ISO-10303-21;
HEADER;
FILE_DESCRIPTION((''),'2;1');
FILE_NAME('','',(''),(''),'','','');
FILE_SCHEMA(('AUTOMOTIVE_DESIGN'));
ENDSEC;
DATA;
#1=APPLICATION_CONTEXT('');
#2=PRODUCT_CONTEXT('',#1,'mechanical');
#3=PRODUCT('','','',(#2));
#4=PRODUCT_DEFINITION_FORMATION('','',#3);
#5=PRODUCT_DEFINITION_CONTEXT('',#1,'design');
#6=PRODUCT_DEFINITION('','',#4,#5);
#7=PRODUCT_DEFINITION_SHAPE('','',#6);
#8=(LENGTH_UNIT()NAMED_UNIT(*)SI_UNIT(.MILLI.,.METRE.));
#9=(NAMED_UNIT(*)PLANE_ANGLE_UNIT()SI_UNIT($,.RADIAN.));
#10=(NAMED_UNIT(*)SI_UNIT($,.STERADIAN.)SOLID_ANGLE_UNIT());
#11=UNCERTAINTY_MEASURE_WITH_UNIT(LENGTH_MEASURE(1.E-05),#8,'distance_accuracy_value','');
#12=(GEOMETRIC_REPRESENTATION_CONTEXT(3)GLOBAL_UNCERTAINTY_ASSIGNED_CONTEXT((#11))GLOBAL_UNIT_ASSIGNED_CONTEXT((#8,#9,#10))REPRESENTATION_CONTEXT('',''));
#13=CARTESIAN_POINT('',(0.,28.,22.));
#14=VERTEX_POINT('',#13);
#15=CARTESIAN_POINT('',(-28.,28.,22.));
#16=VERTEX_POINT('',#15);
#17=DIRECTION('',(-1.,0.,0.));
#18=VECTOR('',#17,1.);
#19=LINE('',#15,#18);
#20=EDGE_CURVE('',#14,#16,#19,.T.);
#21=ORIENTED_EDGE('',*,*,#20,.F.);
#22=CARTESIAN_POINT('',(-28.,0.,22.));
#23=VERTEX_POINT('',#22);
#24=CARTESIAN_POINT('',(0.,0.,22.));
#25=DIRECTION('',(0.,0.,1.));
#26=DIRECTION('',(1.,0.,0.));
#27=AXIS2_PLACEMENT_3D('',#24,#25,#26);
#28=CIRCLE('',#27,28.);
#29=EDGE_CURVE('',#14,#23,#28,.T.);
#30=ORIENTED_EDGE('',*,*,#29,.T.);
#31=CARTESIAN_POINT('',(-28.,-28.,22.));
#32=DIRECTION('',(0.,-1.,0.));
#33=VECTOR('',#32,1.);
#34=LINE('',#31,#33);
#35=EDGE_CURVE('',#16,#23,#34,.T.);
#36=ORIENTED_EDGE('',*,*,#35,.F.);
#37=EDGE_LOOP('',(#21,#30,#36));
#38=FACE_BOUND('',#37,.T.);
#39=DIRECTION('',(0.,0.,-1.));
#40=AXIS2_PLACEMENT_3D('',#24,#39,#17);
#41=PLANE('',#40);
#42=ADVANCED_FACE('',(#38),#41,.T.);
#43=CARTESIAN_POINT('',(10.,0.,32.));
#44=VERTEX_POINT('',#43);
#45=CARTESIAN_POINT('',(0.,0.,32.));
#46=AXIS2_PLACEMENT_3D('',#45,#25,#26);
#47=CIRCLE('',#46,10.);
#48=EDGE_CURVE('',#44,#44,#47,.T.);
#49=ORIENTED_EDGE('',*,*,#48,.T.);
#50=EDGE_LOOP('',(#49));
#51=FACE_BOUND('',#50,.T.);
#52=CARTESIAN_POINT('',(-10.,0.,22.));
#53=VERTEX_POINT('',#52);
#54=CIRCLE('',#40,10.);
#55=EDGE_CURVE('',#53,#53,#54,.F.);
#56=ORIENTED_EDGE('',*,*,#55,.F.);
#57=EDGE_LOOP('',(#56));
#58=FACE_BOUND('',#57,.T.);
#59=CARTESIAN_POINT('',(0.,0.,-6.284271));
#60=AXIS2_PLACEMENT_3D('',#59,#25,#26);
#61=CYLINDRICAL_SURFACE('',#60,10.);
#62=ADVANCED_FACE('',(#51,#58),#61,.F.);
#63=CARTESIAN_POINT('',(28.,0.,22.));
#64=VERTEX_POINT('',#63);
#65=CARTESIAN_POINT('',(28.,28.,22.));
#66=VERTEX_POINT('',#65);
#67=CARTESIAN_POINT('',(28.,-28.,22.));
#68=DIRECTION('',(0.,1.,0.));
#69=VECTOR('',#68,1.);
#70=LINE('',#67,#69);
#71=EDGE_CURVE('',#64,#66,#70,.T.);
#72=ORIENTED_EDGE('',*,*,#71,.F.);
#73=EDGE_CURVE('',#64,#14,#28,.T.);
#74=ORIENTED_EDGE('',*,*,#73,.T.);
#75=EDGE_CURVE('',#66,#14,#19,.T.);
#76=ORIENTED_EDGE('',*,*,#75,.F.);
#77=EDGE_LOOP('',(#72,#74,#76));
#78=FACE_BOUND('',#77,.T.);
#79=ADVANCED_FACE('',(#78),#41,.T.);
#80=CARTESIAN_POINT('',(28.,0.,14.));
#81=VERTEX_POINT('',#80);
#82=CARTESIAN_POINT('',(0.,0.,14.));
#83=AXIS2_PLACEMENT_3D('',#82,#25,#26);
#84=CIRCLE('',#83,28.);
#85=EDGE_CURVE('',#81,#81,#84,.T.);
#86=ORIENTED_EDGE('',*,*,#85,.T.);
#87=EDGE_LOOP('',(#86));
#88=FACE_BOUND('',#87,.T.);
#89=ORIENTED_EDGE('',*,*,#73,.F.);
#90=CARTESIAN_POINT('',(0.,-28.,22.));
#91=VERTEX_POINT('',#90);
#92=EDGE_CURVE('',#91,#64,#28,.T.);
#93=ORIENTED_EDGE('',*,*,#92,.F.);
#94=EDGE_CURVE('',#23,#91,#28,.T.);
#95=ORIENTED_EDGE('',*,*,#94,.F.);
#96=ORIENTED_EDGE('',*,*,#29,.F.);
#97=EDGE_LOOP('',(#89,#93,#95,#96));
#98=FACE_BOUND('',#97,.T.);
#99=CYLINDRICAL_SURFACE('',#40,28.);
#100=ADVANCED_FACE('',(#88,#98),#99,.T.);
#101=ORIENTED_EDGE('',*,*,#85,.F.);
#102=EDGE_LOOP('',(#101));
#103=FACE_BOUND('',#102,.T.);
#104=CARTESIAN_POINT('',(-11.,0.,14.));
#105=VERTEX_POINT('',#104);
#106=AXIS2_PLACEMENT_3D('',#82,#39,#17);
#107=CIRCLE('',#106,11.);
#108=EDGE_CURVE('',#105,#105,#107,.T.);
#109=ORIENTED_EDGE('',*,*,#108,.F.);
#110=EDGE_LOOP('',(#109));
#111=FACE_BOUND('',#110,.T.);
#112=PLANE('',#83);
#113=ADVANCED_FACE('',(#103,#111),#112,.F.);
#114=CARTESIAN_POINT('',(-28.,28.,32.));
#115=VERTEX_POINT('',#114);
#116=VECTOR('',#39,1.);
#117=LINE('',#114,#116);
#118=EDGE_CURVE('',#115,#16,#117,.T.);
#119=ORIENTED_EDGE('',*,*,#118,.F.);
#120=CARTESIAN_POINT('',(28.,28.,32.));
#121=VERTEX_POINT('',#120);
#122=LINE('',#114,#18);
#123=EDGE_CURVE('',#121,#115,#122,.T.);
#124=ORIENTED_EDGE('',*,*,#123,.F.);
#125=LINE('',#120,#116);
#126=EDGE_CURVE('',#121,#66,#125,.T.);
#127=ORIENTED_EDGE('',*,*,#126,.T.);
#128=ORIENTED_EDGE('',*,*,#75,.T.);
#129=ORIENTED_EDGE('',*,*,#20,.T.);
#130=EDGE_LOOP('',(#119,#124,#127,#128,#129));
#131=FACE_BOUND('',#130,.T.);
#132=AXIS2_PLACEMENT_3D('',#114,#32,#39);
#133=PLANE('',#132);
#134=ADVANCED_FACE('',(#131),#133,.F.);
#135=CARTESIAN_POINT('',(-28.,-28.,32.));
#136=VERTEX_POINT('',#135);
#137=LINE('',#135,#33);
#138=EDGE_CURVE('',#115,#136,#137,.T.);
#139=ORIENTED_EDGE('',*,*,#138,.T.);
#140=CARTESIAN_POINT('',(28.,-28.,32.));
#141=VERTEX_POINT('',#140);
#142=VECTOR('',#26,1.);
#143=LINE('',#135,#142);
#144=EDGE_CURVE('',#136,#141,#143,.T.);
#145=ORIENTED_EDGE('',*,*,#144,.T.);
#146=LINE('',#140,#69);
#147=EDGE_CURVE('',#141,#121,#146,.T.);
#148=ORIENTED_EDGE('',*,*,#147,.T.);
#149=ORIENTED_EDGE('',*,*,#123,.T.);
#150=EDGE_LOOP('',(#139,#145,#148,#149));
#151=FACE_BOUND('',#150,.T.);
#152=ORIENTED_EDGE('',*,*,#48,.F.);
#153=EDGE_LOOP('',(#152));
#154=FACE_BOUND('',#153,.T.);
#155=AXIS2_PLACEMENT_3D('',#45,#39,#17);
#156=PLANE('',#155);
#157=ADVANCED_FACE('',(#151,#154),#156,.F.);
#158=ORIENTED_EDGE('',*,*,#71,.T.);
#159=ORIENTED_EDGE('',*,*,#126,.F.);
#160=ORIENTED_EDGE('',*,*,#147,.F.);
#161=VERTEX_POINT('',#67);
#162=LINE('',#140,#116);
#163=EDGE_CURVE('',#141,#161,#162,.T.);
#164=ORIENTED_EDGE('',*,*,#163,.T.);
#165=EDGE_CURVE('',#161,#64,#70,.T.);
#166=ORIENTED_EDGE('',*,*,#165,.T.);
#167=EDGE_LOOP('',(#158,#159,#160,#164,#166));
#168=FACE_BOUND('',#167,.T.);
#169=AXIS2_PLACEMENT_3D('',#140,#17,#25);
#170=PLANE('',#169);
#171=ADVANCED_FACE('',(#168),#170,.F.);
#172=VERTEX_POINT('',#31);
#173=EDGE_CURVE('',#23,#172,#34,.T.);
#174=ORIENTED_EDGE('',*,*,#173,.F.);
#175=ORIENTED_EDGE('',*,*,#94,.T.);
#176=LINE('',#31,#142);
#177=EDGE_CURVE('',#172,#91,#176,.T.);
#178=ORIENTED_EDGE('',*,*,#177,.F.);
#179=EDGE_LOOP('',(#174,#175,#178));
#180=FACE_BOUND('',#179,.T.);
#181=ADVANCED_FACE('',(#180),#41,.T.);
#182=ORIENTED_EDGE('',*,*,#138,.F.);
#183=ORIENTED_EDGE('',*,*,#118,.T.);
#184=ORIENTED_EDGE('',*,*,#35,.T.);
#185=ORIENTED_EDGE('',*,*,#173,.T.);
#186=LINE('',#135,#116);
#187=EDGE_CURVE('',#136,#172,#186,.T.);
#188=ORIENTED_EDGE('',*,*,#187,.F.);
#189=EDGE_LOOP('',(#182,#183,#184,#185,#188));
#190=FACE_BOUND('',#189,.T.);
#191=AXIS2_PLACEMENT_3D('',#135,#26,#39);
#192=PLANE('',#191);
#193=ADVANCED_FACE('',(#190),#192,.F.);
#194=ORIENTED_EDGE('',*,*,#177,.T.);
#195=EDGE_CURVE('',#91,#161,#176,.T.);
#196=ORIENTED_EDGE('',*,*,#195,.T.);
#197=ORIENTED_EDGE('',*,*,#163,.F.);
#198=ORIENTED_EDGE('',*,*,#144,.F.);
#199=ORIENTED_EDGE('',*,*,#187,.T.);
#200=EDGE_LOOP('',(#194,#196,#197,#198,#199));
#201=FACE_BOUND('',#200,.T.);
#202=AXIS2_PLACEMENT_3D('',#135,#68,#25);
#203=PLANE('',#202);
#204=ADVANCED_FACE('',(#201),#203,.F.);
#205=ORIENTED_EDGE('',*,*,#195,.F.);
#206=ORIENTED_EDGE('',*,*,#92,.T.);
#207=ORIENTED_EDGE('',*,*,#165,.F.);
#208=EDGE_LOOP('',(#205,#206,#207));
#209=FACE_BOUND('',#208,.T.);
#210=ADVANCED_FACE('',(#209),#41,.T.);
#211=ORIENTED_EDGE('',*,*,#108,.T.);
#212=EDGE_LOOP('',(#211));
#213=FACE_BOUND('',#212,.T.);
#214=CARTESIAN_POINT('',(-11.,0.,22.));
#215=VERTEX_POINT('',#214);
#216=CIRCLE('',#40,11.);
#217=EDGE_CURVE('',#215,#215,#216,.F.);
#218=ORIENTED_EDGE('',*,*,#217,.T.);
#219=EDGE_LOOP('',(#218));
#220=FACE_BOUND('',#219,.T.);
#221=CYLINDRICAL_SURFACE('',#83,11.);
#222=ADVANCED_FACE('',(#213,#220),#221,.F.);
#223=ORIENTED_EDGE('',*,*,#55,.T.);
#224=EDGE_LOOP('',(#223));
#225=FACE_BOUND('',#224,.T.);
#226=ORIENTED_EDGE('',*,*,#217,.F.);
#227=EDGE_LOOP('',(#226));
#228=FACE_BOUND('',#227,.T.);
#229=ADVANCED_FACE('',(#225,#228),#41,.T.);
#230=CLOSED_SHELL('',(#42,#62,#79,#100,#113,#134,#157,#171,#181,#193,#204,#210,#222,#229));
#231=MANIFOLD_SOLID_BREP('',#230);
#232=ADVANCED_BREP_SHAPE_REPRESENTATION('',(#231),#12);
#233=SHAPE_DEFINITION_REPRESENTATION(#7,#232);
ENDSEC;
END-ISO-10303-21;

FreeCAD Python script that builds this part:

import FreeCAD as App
import Part
import Sketcher


def add_polygon(sketch, points):
    """Adds a closed chain of lines whose ends are joined by coincident constraints."""
    first, n = sketch.GeometryCount, len(points)
    for a, b in zip(points, points[1:] + points[:1]):
        sketch.addGeometry(Part.LineSegment(App.Vector(*a, 0), App.Vector(*b, 0)), False)
    for i in range(n):
        sketch.addConstraint(Sketcher.Constraint("Coincident", first + i, 2, first + (i + 1) % n, 1))

doc = App.newDocument("Part")
body = doc.addObject("PartDesign::Body", "Body")

sketch1 = body.newObject("Sketcher::SketchObject", "Sketch")
sketch1.AttachmentSupport = (doc.getObject("XY_Plane"), [""])
sketch1.MapMode = "FlatFace"
sketch1.addGeometry(Part.Circle(App.Vector(0, 0, 0), App.Vector(0, 0, 1), 28), False)
sketch1.addGeometry(Part.Circle(App.Vector(0, 0, 0), App.Vector(0, 0, 1), 18), False)
sketch1.addConstraint(Sketcher.Constraint("Coincident", 0, 3, -1, 1))
sketch1.addConstraint(Sketcher.Constraint("Coincident", 1, 3, -1, 1))
sketch1.addConstraint(Sketcher.Constraint("Diameter", 0, 56.0))
sketch1.addConstraint(Sketcher.Constraint("Diameter", 1, 36.0))
pad1 = body.newObject("PartDesign::Pad", "Pad")
pad1.Profile = sketch1
pad1.Length = 22

sketch2 = body.newObject("Sketcher::SketchObject", "Sketch001")
sketch2.AttachmentSupport = (doc.getObject("XY_Plane"), [""])
sketch2.MapMode = "FlatFace"
sketch2.AttachmentOffset = App.Placement(App.Vector(0, 0, 22), App.Rotation())
add_polygon(sketch2, [(-28, 28), (-28, -28), (28, -28), (28, 28)])
sketch2.addConstraint(Sketcher.Constraint("Vertical", 0))
sketch2.addConstraint(Sketcher.Constraint("Horizontal", 1))
sketch2.addConstraint(Sketcher.Constraint("Vertical", 2))
sketch2.addConstraint(Sketcher.Constraint("Horizontal", 3))
sketch2.addConstraint(Sketcher.Constraint("Symmetric", 0, 2, 2, 2, -1, 1))
sketch2.addConstraint(Sketcher.Constraint("Equal", 3, 0))
sketch2.addConstraint(Sketcher.Constraint("DistanceX", 1, 1, 1, 2, 56.0))
pad2 = body.newObject("PartDesign::Pad", "Pad001")
pad2.Profile = sketch2
pad2.Length = 10

sketch3 = body.newObject("Sketcher::SketchObject", "Sketch002")
sketch3.AttachmentSupport = (doc.getObject("XY_Plane"), [""])
sketch3.MapMode = "FlatFace"
add_polygon(sketch3, [(0, 0), (28, -28), (-28, -28)])
sketch3.addConstraint(Sketcher.Constraint("Horizontal", 1))
sketch3.addConstraint(Sketcher.Constraint("Coincident", 2, 2, -1, 1))
sketch3.addConstraint(Sketcher.Constraint("Perpendicular", 0, 2))
sketch3.addConstraint(Sketcher.Constraint("Equal", 0, 2))
sketch3.addConstraint(Sketcher.Constraint("DistanceX", 1, 2, 1, 1, 56.0))
pocket1 = body.newObject("PartDesign::Pocket", "Pocket")
pocket1.Profile = sketch3
pocket1.Length = 14
pocket1.Reversed = True

sketch4 = body.newObject("Sketcher::SketchObject", "Sketch003")
sketch4.AttachmentSupport = (doc.getObject("XY_Plane"), [""])
sketch4.MapMode = "FlatFace"
sketch4.AttachmentOffset = App.Placement(App.Vector(0, 0, 22), App.Rotation())
sketch4.addGeometry(Part.Circle(App.Vector(0, 0, 0), App.Vector(0, 0, 1), 5), False)
sketch4.addConstraint(Sketcher.Constraint("Coincident", 0, 3, -1, 1))
sketch4.addConstraint(Sketcher.Constraint("Diameter", 0, 10.0))
pocket2 = body.newObject("PartDesign::Pocket", "Pocket001")
pocket2.Profile = sketch4
pocket2.Length = 14
pocket2.Reversed = True

sketch5 = body.newObject("Sketcher::SketchObject", "Sketch004")
sketch5.AttachmentSupport = (doc.getObject("XY_Plane"), [""])
sketch5.MapMode = "FlatFace"
sketch5.AttachmentOffset = App.Placement(App.Vector(0, 0, 22), App.Rotation())
sketch5.addGeometry(Part.Circle(App.Vector(0, 0, 0), App.Vector(0, 0, 1), 21.225012), False)
sketch5.addGeometry(Part.Circle(App.Vector(0, 0, 0), App.Vector(0, 0, 1), 11), False)
sketch5.addConstraint(Sketcher.Constraint("Coincident", 0, 3, -1, 1))
sketch5.addConstraint(Sketcher.Constraint("Coincident", 1, 3, -1, 1))
sketch5.addConstraint(Sketcher.Constraint("Diameter", 1, 22.0))
sketch5.addConstraint(Sketcher.Constraint("Diameter", 0, 42.450025))
pad3 = body.newObject("PartDesign::Pad", "Pad002")
pad3.Profile = sketch5
pad3.Length = 8
pad3.Reversed = True

sketch6 = body.newObject("Sketcher::SketchObject", "Sketch005")
sketch6.AttachmentSupport = (doc.getObject("XY_Plane"), [""])
sketch6.MapMode = "FlatFace"
sketch6.addGeometry(Part.Circle(App.Vector(0, 0, 0), App.Vector(0, 0, 1), 50.391738), False)
sketch6.addConstraint(Sketcher.Constraint("Coincident", 0, 3, -1, 1))
sketch6.addConstraint(Sketcher.Constraint("Diameter", 0, 100.783476))
pocket3 = body.newObject("PartDesign::Pocket", "Pocket002")
pocket3.Profile = sketch6
pocket3.Length = 14
pocket3.Reversed = True

sketch7 = body.newObject("Sketcher::SketchObject", "Sketch006")
sketch7.AttachmentSupport = (doc.getObject("XY_Plane"), [""])
sketch7.MapMode = "FlatFace"
sketch7.AttachmentOffset = App.Placement(App.Vector(0, 0, 32), App.Rotation())
sketch7.addGeometry(Part.Circle(App.Vector(0, 0, 0), App.Vector(0, 0, 1), 10), False)
sketch7.addConstraint(Sketcher.Constraint("Coincident", 0, 3, -1, 1))
sketch7.addConstraint(Sketcher.Constraint("Diameter", 0, 20.0))
pocket4 = body.newObject("PartDesign::Pocket", "Pocket003")
pocket4.Profile = sketch7
pocket4.Length = 10

doc.recompute()
